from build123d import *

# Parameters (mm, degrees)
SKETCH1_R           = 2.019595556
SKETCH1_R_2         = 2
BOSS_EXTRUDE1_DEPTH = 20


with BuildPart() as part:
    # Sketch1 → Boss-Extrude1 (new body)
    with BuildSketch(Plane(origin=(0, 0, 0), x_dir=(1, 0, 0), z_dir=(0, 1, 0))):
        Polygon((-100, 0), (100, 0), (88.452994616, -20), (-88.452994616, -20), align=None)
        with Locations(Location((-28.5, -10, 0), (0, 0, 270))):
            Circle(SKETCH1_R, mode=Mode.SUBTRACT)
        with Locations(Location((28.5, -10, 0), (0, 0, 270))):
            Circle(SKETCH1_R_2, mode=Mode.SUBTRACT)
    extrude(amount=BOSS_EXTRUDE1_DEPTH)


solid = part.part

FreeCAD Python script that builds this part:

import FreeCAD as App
import Part
import Sketcher
Q = App.Units.Quantity

doc = App.newDocument("Part")
params = doc.addObject("Spreadsheet::Sheet", "Params")
for row, (alias, value) in enumerate([
    ("sketch1_diameter", "4 mm"),
    ("sketch1_width", "200 mm"),
    ("pad1_length", "20 mm"),
], start=1):
    params.set(f"A{row}", alias)
    params.set(f"B{row}", "=" + value)
    params.setAlias(f"B{row}", alias)

body = doc.addObject("PartDesign::Body", "Body")

# Sketch on XZ plane
sketch1 = doc.addObject("Sketcher::SketchObject", "Sketch")
body.addObject(sketch1)
sketch1.AttachmentSupport = (doc.XZ_Plane, [""])
sketch1.MapMode = "FlatFace"
sketch1.addGeometry(Part.LineSegment(App.Vector(100, 0, 0), App.Vector(-100, 0, 0)), False)
sketch1.addGeometry(Part.LineSegment(App.Vector(-100, 0, 0), App.Vector(-88.5, 20, 0)), False)
sketch1.addGeometry(Part.LineSegment(App.Vector(-88.5, 20, 0), App.Vector(88.5, 20, 0)), False)
sketch1.addGeometry(Part.LineSegment(App.Vector(88.5, 20, 0), App.Vector(100, 0, 0)), False)
sketch1.addGeometry(Part.Circle(App.Vector(28.5, 10, 0), App.Vector(0, 0, 1), 2), False)
sketch1.addGeometry(Part.Circle(App.Vector(-28.5, 10, 0), App.Vector(0, 0, 1), 2), False)
sketch1.addConstraint(Sketcher.Constraint("Coincident", 0, 2, 1, 1))
sketch1.addConstraint(Sketcher.Constraint("Coincident", 1, 2, 2, 1))
sketch1.addConstraint(Sketcher.Constraint("Coincident", 2, 2, 3, 1))
sketch1.addConstraint(Sketcher.Constraint("Coincident", 3, 2, 0, 1))
sketch1.addConstraint(Sketcher.Constraint("Horizontal", 0))
sketch1.addConstraint(Sketcher.Constraint("Horizontal", 2))
sketch1.addConstraint(Sketcher.Constraint("Symmetric", 0, 2, 3, 2, -1, 1))
sketch1.addConstraint(Sketcher.Constraint("Symmetric", 4, 3, 5, 3, -2))
sketch1.addConstraint(Sketcher.Constraint("Equal", 1, 3))
sketch1.addConstraint(Sketcher.Constraint("Diameter", 4, 4.0))
sketch1.addConstraint(Sketcher.Constraint("DistanceX", 0, 2, 0, 1, 200.0))
sketch1.addConstraint(Sketcher.Constraint("Angle", 1, Q("60 deg")))
sketch1.addConstraint(Sketcher.Constraint("DistanceY", -1, 1, 4, 3, 10.0))
sketch1.addConstraint(Sketcher.Constraint("DistanceY", -1, 1, 1, 2, 20.0))
sketch1.addConstraint(Sketcher.Constraint("DistanceX", 5, 3, 4, 3, 57.0))
sketch1.addConstraint(Sketcher.Constraint("Diameter", 5, 4.039191))
sketch1.setExpression("Constraints[9]", "Params.sketch1_diameter")
sketch1.setExpression("Constraints[10]", "Params.sketch1_width")
pad1 = doc.addObject("PartDesign::Pad", "Pad")
body.addObject(pad1)
pad1.Profile = sketch1
pad1.setExpression("Length", "Params.pad1_length")
pad1.Reversed = True

doc.recompute()
